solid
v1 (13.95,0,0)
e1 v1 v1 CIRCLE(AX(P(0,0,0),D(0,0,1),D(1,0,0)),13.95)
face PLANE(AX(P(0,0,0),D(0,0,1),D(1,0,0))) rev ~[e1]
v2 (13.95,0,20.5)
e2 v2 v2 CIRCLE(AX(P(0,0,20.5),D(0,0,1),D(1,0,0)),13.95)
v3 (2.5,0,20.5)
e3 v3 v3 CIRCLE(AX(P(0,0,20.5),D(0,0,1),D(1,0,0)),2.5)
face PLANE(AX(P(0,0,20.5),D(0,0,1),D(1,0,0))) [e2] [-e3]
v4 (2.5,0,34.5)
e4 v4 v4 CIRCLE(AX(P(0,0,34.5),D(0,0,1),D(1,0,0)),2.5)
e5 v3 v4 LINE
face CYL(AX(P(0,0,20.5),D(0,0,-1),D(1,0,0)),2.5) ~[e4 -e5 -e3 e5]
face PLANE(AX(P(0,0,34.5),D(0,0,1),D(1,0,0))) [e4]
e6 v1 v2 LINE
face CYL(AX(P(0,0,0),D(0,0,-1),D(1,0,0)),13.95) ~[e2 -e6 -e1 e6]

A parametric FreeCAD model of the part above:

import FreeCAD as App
import Part
import Sketcher
Q = App.Units.Quantity

doc = App.newDocument("Part")
body = doc.addObject("PartDesign::Body", "Body")

# Sketch on XY plane
sketch1 = body.newObject("Sketcher::SketchObject", "Sketch")
sketch1.AttachmentSupport = (doc.getObject("XY_Plane"), [""])
sketch1.MapMode = "FlatFace"
sketch1.addGeometry(Part.Circle(App.Vector(0, 0, 0), App.Vector(0, 0, 1), 13.95), False)
sketch1.addConstraint(Sketcher.Constraint("Coincident", 0, 3, -1, 1))
sketch1.addConstraint(Sketcher.Constraint("Diameter", 0, Q("27.9 mm")))
pad1 = body.newObject("PartDesign::Pad", "Pad")
pad1.Profile = sketch1
pad1.Length = 20.5

# Sketch on XY plane
sketch2 = body.newObject("Sketcher::SketchObject", "Sketch001")
sketch2.AttachmentSupport = (doc.getObject("XY_Plane"), [""])
sketch2.MapMode = "FlatFace"
sketch2.AttachmentOffset = App.Placement(App.Vector(0, 0, 20.5), App.Rotation())
sketch2.addGeometry(Part.Circle(App.Vector(0, 0, 0), App.Vector(0, 0, 1), 2.5), False)
sketch2.addConstraint(Sketcher.Constraint("Coincident", 0, 3, -1, 1))
sketch2.addConstraint(Sketcher.Constraint("Diameter", 0, Q("5 mm")))
pad2 = body.newObject("PartDesign::Pad", "Pad001")
pad2.Profile = sketch2
pad2.Length = 14

doc.recompute()
